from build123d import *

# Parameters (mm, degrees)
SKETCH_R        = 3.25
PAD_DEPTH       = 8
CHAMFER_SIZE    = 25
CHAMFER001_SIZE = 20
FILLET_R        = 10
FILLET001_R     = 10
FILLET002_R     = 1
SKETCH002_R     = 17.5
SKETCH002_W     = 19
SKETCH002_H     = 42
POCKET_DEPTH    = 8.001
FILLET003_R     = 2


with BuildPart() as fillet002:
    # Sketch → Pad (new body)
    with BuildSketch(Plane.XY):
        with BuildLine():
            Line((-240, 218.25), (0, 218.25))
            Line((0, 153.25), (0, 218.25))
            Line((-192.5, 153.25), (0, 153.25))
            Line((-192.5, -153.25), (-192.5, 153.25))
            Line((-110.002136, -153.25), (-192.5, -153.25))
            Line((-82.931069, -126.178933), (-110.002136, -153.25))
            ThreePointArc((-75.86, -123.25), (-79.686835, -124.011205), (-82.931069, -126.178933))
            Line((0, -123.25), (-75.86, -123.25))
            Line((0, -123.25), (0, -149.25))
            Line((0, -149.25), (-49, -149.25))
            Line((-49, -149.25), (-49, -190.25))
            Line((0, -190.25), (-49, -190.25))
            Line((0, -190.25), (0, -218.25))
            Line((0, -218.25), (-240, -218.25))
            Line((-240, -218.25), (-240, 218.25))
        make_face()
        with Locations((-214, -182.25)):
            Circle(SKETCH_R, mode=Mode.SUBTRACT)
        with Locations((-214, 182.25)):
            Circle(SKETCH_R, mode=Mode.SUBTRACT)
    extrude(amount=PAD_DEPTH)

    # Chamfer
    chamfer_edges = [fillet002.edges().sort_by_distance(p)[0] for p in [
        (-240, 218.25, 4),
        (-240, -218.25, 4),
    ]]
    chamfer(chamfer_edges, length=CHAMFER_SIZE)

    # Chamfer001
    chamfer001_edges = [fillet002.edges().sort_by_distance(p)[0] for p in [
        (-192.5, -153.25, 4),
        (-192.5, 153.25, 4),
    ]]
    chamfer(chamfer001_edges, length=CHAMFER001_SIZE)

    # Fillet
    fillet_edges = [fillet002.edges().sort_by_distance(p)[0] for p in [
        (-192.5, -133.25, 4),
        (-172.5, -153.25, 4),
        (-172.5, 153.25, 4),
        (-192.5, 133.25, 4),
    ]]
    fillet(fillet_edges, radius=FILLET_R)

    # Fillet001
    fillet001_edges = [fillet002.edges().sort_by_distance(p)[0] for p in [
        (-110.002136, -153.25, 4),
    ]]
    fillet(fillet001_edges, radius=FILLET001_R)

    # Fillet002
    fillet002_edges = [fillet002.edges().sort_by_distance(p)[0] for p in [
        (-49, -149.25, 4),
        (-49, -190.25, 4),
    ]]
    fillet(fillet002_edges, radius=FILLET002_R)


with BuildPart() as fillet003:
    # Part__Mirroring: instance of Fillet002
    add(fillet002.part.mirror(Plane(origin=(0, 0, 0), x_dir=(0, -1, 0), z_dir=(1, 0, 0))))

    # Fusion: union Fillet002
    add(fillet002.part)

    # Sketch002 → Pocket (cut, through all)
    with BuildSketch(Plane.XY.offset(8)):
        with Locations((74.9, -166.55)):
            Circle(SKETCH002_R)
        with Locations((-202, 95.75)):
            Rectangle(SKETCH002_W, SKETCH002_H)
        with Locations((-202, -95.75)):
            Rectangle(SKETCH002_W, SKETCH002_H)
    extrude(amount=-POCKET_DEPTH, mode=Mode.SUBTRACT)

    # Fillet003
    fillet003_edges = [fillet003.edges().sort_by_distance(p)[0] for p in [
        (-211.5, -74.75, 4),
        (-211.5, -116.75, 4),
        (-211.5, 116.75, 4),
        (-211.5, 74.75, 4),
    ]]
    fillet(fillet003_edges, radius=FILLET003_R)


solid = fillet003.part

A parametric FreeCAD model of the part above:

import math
import FreeCAD as App
import Part
import Sketcher
from FreeCAD import Vector
Q = App.Units.Quantity


def edges_at(feature, points):
    """Names of the edges that pass closest to the given points."""
    edges = feature.Shape.Edges
    near = lambda p: min(range(len(edges)), key=lambda i: edges[i].distToShape(Part.Vertex(*p))[0])
    return sorted({f"Edge{near(p) + 1}" for p in points})


def add_polygon(sketch, points):
    """Adds a closed chain of lines whose ends are joined by coincident constraints."""
    first, n = sketch.GeometryCount, len(points)
    for a, b in zip(points, points[1:] + points[:1]):
        sketch.addGeometry(Part.LineSegment(App.Vector(*a, 0), App.Vector(*b, 0)), False)
    for i in range(n):
        sketch.addConstraint(Sketcher.Constraint("Coincident", first + i, 2, first + (i + 1) % n, 1))

doc = App.newDocument("Part")
body = doc.addObject("PartDesign::Body", "Body")

# Sketch on XY plane
sketch1 = body.newObject("Sketcher::SketchObject", "Sketch")
sketch1.AttachmentSupport = (doc.getObject("XY_Plane"), [""])
sketch1.MapMode = "FlatFace"
sketch1.addGeometry(Part.LineSegment(Vector(0, 218.25, 0), Vector(-240, 218.25, 0)), False)
sketch1.addGeometry(Part.LineSegment(Vector(-240, 218.25, 0), Vector(-240, -218.25, 0)), False)
sketch1.addGeometry(Part.LineSegment(Vector(-240, -218.25, 0), Vector(0, -218.25, 0)), False)
sketch1.addGeometry(Part.LineSegment(Vector(0, -218.25, 0), Vector(0, -190.25, 0)), False)
sketch1.addGeometry(Part.LineSegment(Vector(0, -190.25, 0), Vector(-49, -190.25, 0)), False)
sketch1.addGeometry(Part.LineSegment(Vector(-49, -190.25, 0), Vector(-49, -149.25, 0)), False)
sketch1.addGeometry(Part.LineSegment(Vector(-49, -149.25, 0), Vector(0, -149.25, 0)), False)
sketch1.addGeometry(Part.LineSegment(Vector(0, -149.25, 0), Vector(0, -123.25, 0)), False)
sketch1.addGeometry(Part.LineSegment(Vector(0, -123.25, 0), Vector(-75.86, -123.25, 0)), False)
sketch1.addGeometry(Part.ArcOfCircle(Part.Circle(Vector(-75.859999, -133.250002, 0), Vector(0, 0, 1), 10.000002), math.radians(90.000003), math.radians(135.000001)), False)
sketch1.addGeometry(Part.LineSegment(Vector(-82.931069, -126.178933, 0), Vector(-110.002136, -153.25, 0)), False)
sketch1.addGeometry(Part.LineSegment(Vector(-110.002136, -153.25, 0), Vector(-192.5, -153.25, 0)), False)
sketch1.addGeometry(Part.LineSegment(Vector(-192.5, -153.25, 0), Vector(-192.5, 153.25, 0)), False)
sketch1.addGeometry(Part.LineSegment(Vector(-192.5, 153.25, 0), Vector(0, 153.25, 0)), False)
sketch1.addGeometry(Part.LineSegment(Vector(0, 153.25, 0), Vector(0, 218.25, 0)), False)
sketch1.addGeometry(Part.Circle(Vector(-214, -182.25, 0), Vector(0, 0, 1), 3.25), False)
sketch1.addGeometry(Part.Circle(Vector(-214, 182.25, 0), Vector(0, 0, 1), 3.25), False)
sketch1.addConstraint(Sketcher.Constraint("Coincident", 0, 2, 1, 1))
sketch1.addConstraint(Sketcher.Constraint("Coincident", 1, 2, 2, 1))
sketch1.addConstraint(Sketcher.Constraint("Coincident", 2, 2, 3, 1))
sketch1.addConstraint(Sketcher.Constraint("Coincident", 3, 2, 4, 1))
sketch1.addConstraint(Sketcher.Constraint("Coincident", 4, 2, 5, 1))
sketch1.addConstraint(Sketcher.Constraint("Coincident", 5, 2, 6, 1))
sketch1.addConstraint(Sketcher.Constraint("Coincident", 6, 2, 7, 1))
sketch1.addConstraint(Sketcher.Constraint("Coincident", 7, 2, 8, 1))
sketch1.addConstraint(Sketcher.Constraint("Tangent", 8, 2, 9, 1))
sketch1.addConstraint(Sketcher.Constraint("Tangent", 9, 2, 10, 1))
sketch1.addConstraint(Sketcher.Constraint("Coincident", 10, 2, 11, 1))
sketch1.addConstraint(Sketcher.Constraint("Coincident", 11, 2, 12, 1))
sketch1.addConstraint(Sketcher.Constraint("Coincident", 12, 2, 13, 1))
sketch1.addConstraint(Sketcher.Constraint("Coincident", 13, 2, 14, 1))
sketch1.addConstraint(Sketcher.Constraint("Coincident", 14, 2, 0, 1))
sketch1.addConstraint(Sketcher.Constraint("Horizontal", 0))
sketch1.addConstraint(Sketcher.Constraint("Vertical", 1))
sketch1.addConstraint(Sketcher.Constraint("Horizontal", 2))
sketch1.addConstraint(Sketcher.Constraint("Vertical", 3))
sketch1.addConstraint(Sketcher.Constraint("Horizontal", 4))
sketch1.addConstraint(Sketcher.Constraint("Vertical", 5))
sketch1.addConstraint(Sketcher.Constraint("Horizontal", 6))
sketch1.addConstraint(Sketcher.Constraint("Vertical", 7))
sketch1.addConstraint(Sketcher.Constraint("Horizontal", 8))
sketch1.addConstraint(Sketcher.Constraint("Horizontal", 11))
sketch1.addConstraint(Sketcher.Constraint("Vertical", 12))
sketch1.addConstraint(Sketcher.Constraint("Horizontal", 13))
sketch1.addConstraint(Sketcher.Constraint("Vertical", 14))
sketch1.addConstraint(Sketcher.Constraint("Equal", 15, 16))
sketch1.addConstraint(Sketcher.Constraint("Symmetric", 2, 2, 14, 2, -1, 1))
sketch1.addConstraint(Sketcher.Constraint("Symmetric", 15, 3, 16, 3, -1))
sketch1.addConstraint(Sketcher.Constraint("PointOnObject", 2, 2, -2))
sketch1.addConstraint(Sketcher.Constraint("PointOnObject", 6, 2, -2))
sketch1.addConstraint(Sketcher.Constraint("Diameter", 15, Q("6.5 mm")))
sketch1.addConstraint(Sketcher.Constraint("DistanceX", 0, 2, 0, 1, Q("240 mm")))
sketch1.addConstraint(Sketcher.Constraint("DistanceX", 4, 2, 4, 1, Q("49 mm")))
sketch1.addConstraint(Sketcher.Constraint("DistanceY", 3, 1, 3, 2, Q("28 mm")))
sketch1.addConstraint(Sketcher.Constraint("DistanceY", 5, 1, 5, 2, Q("41 mm")))
sketch1.addConstraint(Sketcher.Constraint("DistanceY", 7, 1, 7, 2, Q("26 mm")))
sketch1.addConstraint(Sketcher.Constraint("DistanceY", 14, 1, 14, 2, Q("65 mm")))
sketch1.addConstraint(Sketcher.Constraint("Angle", 10, Q("-135 deg")))
sketch1.addConstraint(Sketcher.Constraint("DistanceX", 13, 1, 13, 2, Q("192.5 mm")))
sketch1.addConstraint(Sketcher.Constraint("DistanceY", 1, 2, 1, 1, Q("436.5 mm")))
sketch1.addConstraint(Sketcher.Constraint("DistanceY", 12, 1, 12, 2, Q("306.5 mm")))
sketch1.addConstraint(Sketcher.Constraint("DistanceX", 15, 3, -1, 1, Q("214 mm")))
sketch1.addConstraint(Sketcher.Constraint("DistanceY", 16, 3, 0, 2, Q("36 mm")))
sketch1.addConstraint(Sketcher.Constraint("DistanceX", 8, 2, 8, 1, Q("75.86 mm")))
sketch1.addConstraint(Sketcher.Constraint("Radius", 9, Q("10.000002 mm")))
pad1 = body.newObject("PartDesign::Pad", "Pad")
pad1.Profile = sketch1
pad1.Length = 8
doc.recompute()

chamfer = body.newObject("PartDesign::Chamfer", "Chamfer")
chamfer.Base = (pad1, edges_at(pad1, [(-240, 218.25, 4), (-240, -218.25, 4)]))
chamfer.Size = 25
doc.recompute()

chamfer2 = body.newObject("PartDesign::Chamfer", "Chamfer001")
chamfer2.Base = (chamfer, edges_at(chamfer, [(-192.5, -153.25, 4), (-192.5, 153.25, 4)]))
chamfer2.Size = 20
doc.recompute()

fillet = body.newObject("PartDesign::Fillet", "Fillet")
fillet.Base = (chamfer2, edges_at(chamfer2, [
    (-192.5, -133.25, 4),
    (-172.5, -153.25, 4),
    (-172.5, 153.25, 4),
    (-192.5, 133.25, 4),
]))
fillet.Radius = 10
doc.recompute()

fillet2 = body.newObject("PartDesign::Fillet", "Fillet001")
fillet2.Base = (fillet, edges_at(fillet, [(-110.002, -153.25, 4)]))
fillet2.Radius = 10
doc.recompute()

fillet3 = body.newObject("PartDesign::Fillet", "Fillet002")
fillet3.Base = (fillet2, edges_at(fillet2, [(-49, -149.25, 4), (-49, -190.25, 4)]))
fillet3.Radius = 1
body2 = doc.addObject("PartDesign::Body", "Body001")
doc.recompute()

mirroring = doc.addObject("Part::Mirroring", "Mirroring")
mirroring.Source = body
mirroring.Base = Vector(0, 0, 0)
mirroring.Normal = Vector(1, 0, 0)
body2.BaseFeature = mirroring
doc.recompute()

boolean = body2.newObject("PartDesign::Boolean", "Boolean")
boolean.Type = "Fuse"
boolean.addObjects([body])

# Sketch on XY plane
sketch2 = body2.newObject("Sketcher::SketchObject", "Sketch001")
sketch2.AttachmentSupport = (doc.getObject("XY_Plane001"), [""])
sketch2.MapMode = "FlatFace"
sketch2.AttachmentOffset = App.Placement(Vector(0, 0, 8), App.Rotation())
sketch2.addGeometry(Part.Circle(Vector(74.9, -166.55, 0), Vector(0, 0, 1), 17.5), False)  # 0
add_polygon(sketch2, [(-211.5, 116.75), (-211.5, 74.75), (-192.5, 74.75), (-192.5, 116.75)])  # lines 1-4
add_polygon(sketch2, [(-211.5, -74.75), (-211.5, -116.75), (-192.5, -116.75), (-192.5, -74.75)])  # lines 5-8
sketch2.addConstraint(Sketcher.Constraint("Vertical", 1))
sketch2.addConstraint(Sketcher.Constraint("Horizontal", 2))
sketch2.addConstraint(Sketcher.Constraint("Vertical", 3))
sketch2.addConstraint(Sketcher.Constraint("Horizontal", 4))
sketch2.addConstraint(Sketcher.Constraint("Vertical", 5))
sketch2.addConstraint(Sketcher.Constraint("Horizontal", 6))
sketch2.addConstraint(Sketcher.Constraint("Vertical", 7))
sketch2.addConstraint(Sketcher.Constraint("Horizontal", 8))
sketch2.addConstraint(Sketcher.Constraint("Symmetric", 4, 2, 5, 2, -1))
sketch2.addConstraint(Sketcher.Constraint("Symmetric", 2, 2, 7, 2, -1))
sketch2.addConstraint(Sketcher.Constraint("Diameter", 0, Q("35 mm")))
sketch2.addConstraint(Sketcher.Constraint("DistanceX", 2, 1, 2, 2, Q("19 mm")))
sketch2.addConstraint(Sketcher.Constraint("DistanceY", 1, 2, 1, 1, Q("42 mm")))
sketch2.addConstraint(Sketcher.Constraint("DistanceX", -1, 1, 0, 3, Q("74.9 mm")))
sketch2.addConstraint(Sketcher.Constraint("DistanceX", 1, 2, -1, 1, Q("211.5 mm")))
sketch2.addConstraint(Sketcher.Constraint("DistanceY", 0, 3, 1, 2, Q("241.3 mm")))
sketch2.addConstraint(Sketcher.Constraint("DistanceY", 5, 2, 1, 2, Q("191.5 mm")))
pocket1 = body2.newObject("PartDesign::Pocket", "Pocket")
pocket1.Profile = sketch2
pocket1.Type = "ThroughAll"
doc.recompute()

fillet4 = body2.newObject("PartDesign::Fillet", "Fillet003")
fillet4.Base = (pocket1, edges_at(pocket1, [
    (-211.5, -74.75, 4),
    (-211.5, -116.75, 4),
    (-211.5, 116.75, 4),
    (-211.5, 74.75, 4),
]))
fillet4.Radius = 2
mirroring.Visibility = False

doc.recompute()
